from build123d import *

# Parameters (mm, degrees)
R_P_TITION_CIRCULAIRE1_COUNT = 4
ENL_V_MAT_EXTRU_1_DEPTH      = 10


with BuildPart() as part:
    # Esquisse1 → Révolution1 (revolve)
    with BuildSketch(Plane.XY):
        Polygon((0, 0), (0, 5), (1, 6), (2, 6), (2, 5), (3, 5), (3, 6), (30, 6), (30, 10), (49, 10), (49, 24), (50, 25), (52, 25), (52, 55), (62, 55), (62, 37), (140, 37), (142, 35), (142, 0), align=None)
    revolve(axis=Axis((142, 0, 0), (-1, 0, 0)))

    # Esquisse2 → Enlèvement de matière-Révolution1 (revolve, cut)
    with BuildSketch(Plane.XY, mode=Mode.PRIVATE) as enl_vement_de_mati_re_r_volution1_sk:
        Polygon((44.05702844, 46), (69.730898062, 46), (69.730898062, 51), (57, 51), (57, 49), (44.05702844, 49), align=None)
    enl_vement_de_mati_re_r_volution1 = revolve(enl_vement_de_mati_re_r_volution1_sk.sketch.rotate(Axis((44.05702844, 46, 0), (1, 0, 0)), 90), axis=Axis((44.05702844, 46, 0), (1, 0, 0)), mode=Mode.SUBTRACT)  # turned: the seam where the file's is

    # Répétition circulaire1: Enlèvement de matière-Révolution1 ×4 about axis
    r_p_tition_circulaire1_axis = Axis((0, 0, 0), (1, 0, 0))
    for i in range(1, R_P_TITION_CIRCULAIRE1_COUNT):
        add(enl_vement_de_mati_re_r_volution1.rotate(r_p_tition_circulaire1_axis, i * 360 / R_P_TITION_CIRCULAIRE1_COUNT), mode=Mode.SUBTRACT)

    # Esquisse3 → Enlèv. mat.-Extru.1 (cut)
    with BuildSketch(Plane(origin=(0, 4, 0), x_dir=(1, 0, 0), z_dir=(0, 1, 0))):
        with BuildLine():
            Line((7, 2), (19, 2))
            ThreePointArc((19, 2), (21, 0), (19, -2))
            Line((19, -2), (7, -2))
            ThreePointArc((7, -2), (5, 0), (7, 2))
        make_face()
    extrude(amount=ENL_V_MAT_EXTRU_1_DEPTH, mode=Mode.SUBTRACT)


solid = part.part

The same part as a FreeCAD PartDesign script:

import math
import FreeCAD as App
import Part
import Sketcher

V = App.Vector
Q = App.Units.Quantity

doc = App.newDocument("Part")
body = doc.addObject("PartDesign::Body", "Body")

# Sketch on XY plane
sketch1 = doc.addObject("Sketcher::SketchObject", "Sketch")
body.addObject(sketch1)
sketch1.AttachmentSupport = (doc.XY_Plane, [""])
sketch1.MapMode = "FlatFace"
sketch1.addGeometry([
    Part.LineSegment(V(0, 5, 0), V(0, 0, 0)),  # 0
    Part.LineSegment(V(0, 0, 0), V(142, 0, 0)),  # 1
    Part.LineSegment(V(142, 0, 0), V(142, 35, 0)),  # 2
    Part.LineSegment(V(142, 35, 0), V(140, 37, 0)),  # 3
    Part.LineSegment(V(140, 37, 0), V(62, 37, 0)),  # 4
    Part.LineSegment(V(62, 37, 0), V(62, 55, 0)),  # 5
    Part.LineSegment(V(62, 55, 0), V(52, 55, 0)),  # 6
    Part.LineSegment(V(52, 55, 0), V(52, 25, 0)),  # 7
    Part.LineSegment(V(52, 25, 0), V(50, 25, 0)),  # 8
    Part.LineSegment(V(50, 25, 0), V(49, 24, 0)),  # 9
    Part.LineSegment(V(49, 24, 0), V(49, 10, 0)),  # 10
    Part.LineSegment(V(49, 10, 0), V(30, 10, 0)),  # 11
    Part.LineSegment(V(30, 10, 0), V(30, 6, 0)),  # 12
    Part.LineSegment(V(30, 6, 0), V(3, 6, 0)),  # 13
    Part.LineSegment(V(3, 6, 0), V(3, 5, 0)),  # 14
    Part.LineSegment(V(3, 5, 0), V(2, 5, 0)),  # 15
    Part.LineSegment(V(2, 5, 0), V(2, 6, 0)),  # 16
    Part.LineSegment(V(2, 6, 0), V(1, 6, 0)),  # 17
    Part.LineSegment(V(1, 6, 0), V(0, 5, 0)),  # 18
], False)
sketch1.addConstraint([
    Sketcher.Constraint("Coincident", 0, 2, 1, 1),
    Sketcher.Constraint("Coincident", 1, 2, 2, 1),
    Sketcher.Constraint("Coincident", 2, 2, 3, 1),
    Sketcher.Constraint("Coincident", 3, 2, 4, 1),
    Sketcher.Constraint("Coincident", 4, 2, 5, 1),
    Sketcher.Constraint("Coincident", 5, 2, 6, 1),
    Sketcher.Constraint("Coincident", 6, 2, 7, 1),
    Sketcher.Constraint("Coincident", 7, 2, 8, 1),
    Sketcher.Constraint("Coincident", 8, 2, 9, 1),
    Sketcher.Constraint("Coincident", 9, 2, 10, 1),
    Sketcher.Constraint("Coincident", 10, 2, 11, 1),
    Sketcher.Constraint("Coincident", 11, 2, 12, 1),
    Sketcher.Constraint("Coincident", 12, 2, 13, 1),
    Sketcher.Constraint("Coincident", 13, 2, 14, 1),
    Sketcher.Constraint("Coincident", 14, 2, 15, 1),
    Sketcher.Constraint("Coincident", 15, 2, 16, 1),
    Sketcher.Constraint("Coincident", 16, 2, 17, 1),
    Sketcher.Constraint("Coincident", 17, 2, 18, 1),
    Sketcher.Constraint("Coincident", 18, 2, 0, 1),
    Sketcher.Constraint("Vertical", 0),
    Sketcher.Constraint("Horizontal", 1),
    Sketcher.Constraint("Vertical", 2),
    Sketcher.Constraint("Horizontal", 4),
    Sketcher.Constraint("Vertical", 5),
    Sketcher.Constraint("Horizontal", 6),
    Sketcher.Constraint("Vertical", 7),
    Sketcher.Constraint("Horizontal", 8),
    Sketcher.Constraint("Vertical", 10),
    Sketcher.Constraint("Horizontal", 11),
    Sketcher.Constraint("Vertical", 12),
    Sketcher.Constraint("Horizontal", 13),
    Sketcher.Constraint("Vertical", 14),
    Sketcher.Constraint("Horizontal", 15),
    Sketcher.Constraint("Vertical", 16),
    Sketcher.Constraint("Horizontal", 17),
    Sketcher.Constraint("Coincident", 0, 2, -1, 1),
    Sketcher.Constraint("Perpendicular", 3, 9),
    Sketcher.Constraint("Parallel", 9, 18),
    Sketcher.Constraint("Horizontal", 13, 2, 16, 2),
    Sketcher.Constraint("Horizontal", 15, 2, 18, 2),
    Sketcher.Constraint("Equal", 15, 17),
    Sketcher.Constraint("Equal", 17, 14),
    Sketcher.Constraint("Equal", 9, 18),
    Sketcher.Constraint("DistanceX", 1, 1, 1, 2, Q("142 mm")),
    Sketcher.Constraint("DistanceX", 4, 2, 4, 1, Q("78 mm")),
    Sketcher.Constraint("DistanceX", 6, 2, 6, 1, Q("10 mm")),
    Sketcher.Constraint("DistanceX", 8, 2, 8, 1, Q("2 mm")),
    Sketcher.Constraint("DistanceX", 11, 2, 11, 1, Q("19 mm")),
    Sketcher.Constraint("DistanceX", 13, 2, 13, 1, Q("27 mm")),
    Sketcher.Constraint("DistanceX", 15, 2, 15, 1, Q("1 mm")),
    Sketcher.Constraint("DistanceY", 0, 2, 0, 1, Q("5 mm")),
    Sketcher.Constraint("DistanceY", 2, 1, 2, 2, Q("35 mm")),
    Sketcher.Constraint("DistanceY", 5, 1, 5, 2, Q("18 mm")),
    Sketcher.Constraint("DistanceY", 7, 2, 7, 1, Q("30 mm")),
    Sketcher.Constraint("DistanceY", 10, 2, 10, 1, Q("14 mm")),
    Sketcher.Constraint("Angle", 3, Q("135 deg")),
])
revolution = doc.addObject("PartDesign::Revolution", "Revolution")
body.addObject(revolution)
revolution.Profile = sketch1
revolution.ReferenceAxis = (sketch1, ["H_Axis"])
revolution.Angle = 360

# Sketch on XY plane
sketch2 = doc.addObject("Sketcher::SketchObject", "Sketch001")
body.addObject(sketch2)
sketch2.AttachmentSupport = (doc.XY_Plane, [""])
sketch2.MapMode = "FlatFace"
sketch2.addGeometry([
    Part.LineSegment(V(44.1, 46, 0), V(69.7, 46, 0)),  # 0
    Part.LineSegment(V(69.7, 46, 0), V(69.7, 51, 0)),  # 1
    Part.LineSegment(V(69.7, 51, 0), V(57, 51, 0)),  # 2
    Part.LineSegment(V(57, 51, 0), V(57, 49, 0)),  # 3
    Part.LineSegment(V(57, 49, 0), V(44.1, 49, 0)),  # 4
    Part.LineSegment(V(44.1, 49, 0), V(44.1, 46, 0)),  # 5
], False)
sketch2.addGeometry(Part.LineSegment(V(44.1, 46, 0), V(69.7, 46, 0)), True)  # axis
sketch2.addConstraint([
    Sketcher.Constraint("Coincident", 0, 2, 1, 1),
    Sketcher.Constraint("Coincident", 1, 2, 2, 1),
    Sketcher.Constraint("Coincident", 2, 2, 3, 1),
    Sketcher.Constraint("Coincident", 3, 2, 4, 1),
    Sketcher.Constraint("Coincident", 4, 2, 5, 1),
    Sketcher.Constraint("Coincident", 5, 2, 0, 1),
    Sketcher.Constraint("Horizontal", 0),
    Sketcher.Constraint("Vertical", 1),
    Sketcher.Constraint("Horizontal", 2),
    Sketcher.Constraint("Vertical", 3),
    Sketcher.Constraint("Horizontal", 4),
    Sketcher.Constraint("Vertical", 5),
    Sketcher.Constraint("Horizontal", 6),
    Sketcher.Constraint("Coincident", 6, 1, 5, 2),
    Sketcher.Constraint("Vertical", 1, 2, 6, 2),
    Sketcher.Constraint("DistanceY", 1, 1, 1, 2, Q("5 mm")),
    Sketcher.Constraint("DistanceY", 3, 2, 3, 1, Q("2 mm")),
    Sketcher.Constraint("DistanceY", -1, 1, 0, 2, Q("46 mm")),
    Sketcher.Constraint("DistanceX", -1, 1, 2, 2, Q("57 mm")),
    Sketcher.Constraint("DistanceX", 2, 2, 2, 1, Q("12.730898 mm")),
    Sketcher.Constraint("DistanceX", 0, 1, 0, 2, Q("25.67387 mm")),
])
groove = doc.addObject("PartDesign::Groove", "Groove")
body.addObject(groove)
groove.Profile = sketch2
groove.ReferenceAxis = (sketch2, ["Axis0"])
groove.Angle = 360
doc.recompute()

polarpattern = doc.addObject("PartDesign::PolarPattern", "PolarPattern")
body.addObject(polarpattern)
polarpattern.Originals = [groove]
polarpattern.Axis = (doc.X_Axis, [""])
polarpattern.Angle = 360
polarpattern.Occurrences = 4
body.Tip = polarpattern

# Sketch on XZ plane
sketch3 = doc.addObject("Sketcher::SketchObject", "Sketch002")
body.addObject(sketch3)
sketch3.AttachmentSupport = (doc.XZ_Plane, [""])
sketch3.MapMode = "FlatFace"
sketch3.AttachmentOffset = App.Placement(V(0, 0, -4), App.Rotation())
sketch3.addGeometry([
    Part.LineSegment(V(19, -2, 0), V(7, -2, 0)),
    Part.ArcOfCircle(Part.Circle(V(7, 0, 0), V(0, 0, 1), 2), math.radians(90), math.radians(270)),
    Part.LineSegment(V(7, 2, 0), V(19, 2, 0)),
    Part.ArcOfCircle(Part.Circle(V(19, 0, 0), V(0, 0, 1), 2), math.radians(-90), math.radians(90)),
], False)
sketch3.addConstraint([
    Sketcher.Constraint("Tangent", 0, 2, 1, 2),
    Sketcher.Constraint("Tangent", 1, 1, 2, 1),
    Sketcher.Constraint("Tangent", 2, 2, 3, 2),
    Sketcher.Constraint("Tangent", 3, 1, 0, 1),
    Sketcher.Constraint("Horizontal", 0),
    Sketcher.Constraint("Horizontal", 2),
    Sketcher.Constraint("PointOnObject", 1, 3, -1),
    Sketcher.Constraint("Radius", 1, Q("2 mm")),
    Sketcher.Constraint("DistanceX", 0, 2, 0, 1, Q("12 mm")),
    Sketcher.Constraint("DistanceX", -1, 1, 1, 3, Q("7 mm")),
])
pocket1 = doc.addObject("PartDesign::Pocket", "Pocket")
body.addObject(pocket1)
pocket1.Profile = sketch3
pocket1.Length = 10

doc.recompute()
